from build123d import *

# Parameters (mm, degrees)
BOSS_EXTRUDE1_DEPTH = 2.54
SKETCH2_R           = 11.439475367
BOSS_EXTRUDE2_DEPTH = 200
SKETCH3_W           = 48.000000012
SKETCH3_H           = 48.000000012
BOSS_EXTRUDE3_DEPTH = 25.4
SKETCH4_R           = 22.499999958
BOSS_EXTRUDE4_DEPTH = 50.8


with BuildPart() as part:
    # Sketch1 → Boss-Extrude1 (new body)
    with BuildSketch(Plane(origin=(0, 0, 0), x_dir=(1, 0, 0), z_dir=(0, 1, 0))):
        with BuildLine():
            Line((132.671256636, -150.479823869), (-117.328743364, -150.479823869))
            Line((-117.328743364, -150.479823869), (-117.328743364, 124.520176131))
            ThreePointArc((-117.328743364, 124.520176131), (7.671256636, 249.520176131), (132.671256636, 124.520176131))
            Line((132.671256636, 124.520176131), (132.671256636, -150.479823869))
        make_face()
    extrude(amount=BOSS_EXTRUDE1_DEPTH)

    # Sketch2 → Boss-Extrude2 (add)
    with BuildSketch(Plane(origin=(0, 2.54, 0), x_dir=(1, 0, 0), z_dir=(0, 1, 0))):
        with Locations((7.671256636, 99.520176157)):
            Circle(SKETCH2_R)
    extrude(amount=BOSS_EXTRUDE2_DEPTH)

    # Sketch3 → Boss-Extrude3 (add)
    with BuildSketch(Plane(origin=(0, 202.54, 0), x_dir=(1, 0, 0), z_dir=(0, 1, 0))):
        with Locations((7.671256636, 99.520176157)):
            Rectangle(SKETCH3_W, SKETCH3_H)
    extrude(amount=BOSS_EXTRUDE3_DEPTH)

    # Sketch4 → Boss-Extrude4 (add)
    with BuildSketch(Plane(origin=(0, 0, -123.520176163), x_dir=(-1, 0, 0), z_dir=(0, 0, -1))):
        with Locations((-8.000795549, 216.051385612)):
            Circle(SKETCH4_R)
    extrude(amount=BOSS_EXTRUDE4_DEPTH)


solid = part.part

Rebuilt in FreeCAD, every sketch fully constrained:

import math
import FreeCAD as App
import Part
import Sketcher

V = App.Vector

doc = App.newDocument("Part")
body = doc.addObject("PartDesign::Body", "Body")

sketch1 = body.newObject("Sketcher::SketchObject", "Sketch")
sketch1.AttachmentSupport = (doc.getObject("XZ_Plane"), [""])
sketch1.MapMode = "FlatFace"
sketch1.addGeometry(Part.LineSegment(V(-117, 150, 0), V(133, 150, 0)), False)
sketch1.addGeometry(Part.LineSegment(V(133, 150, 0), V(133, -125, 0)), False)
sketch1.addGeometry(Part.ArcOfCircle(Part.Circle(V(8, -125, 0), V(0, 0, 1), 125), math.radians(180), math.radians(360)), False)
sketch1.addGeometry(Part.LineSegment(V(-117, -125, 0), V(-117, 150, 0)), False)
sketch1.addConstraint(Sketcher.Constraint("Coincident", 0, 2, 1, 1))
sketch1.addConstraint(Sketcher.Constraint("Tangent", 1, 2, 2, 2))
sketch1.addConstraint(Sketcher.Constraint("Tangent", 2, 1, 3, 1))
sketch1.addConstraint(Sketcher.Constraint("Coincident", 3, 2, 0, 1))
sketch1.addConstraint(Sketcher.Constraint("Horizontal", 0))
sketch1.addConstraint(Sketcher.Constraint("Vertical", 1))
sketch1.addConstraint(Sketcher.Constraint("Vertical", 3))
sketch1.addConstraint(Sketcher.Constraint("Radius", 2, 125.0))
sketch1.addConstraint(Sketcher.Constraint("DistanceY", 1, 2, 1, 1, 275.0))
sketch1.addConstraint(Sketcher.Constraint("DistanceX", -1, 1, 2, 3, 7.671257))
sketch1.addConstraint(Sketcher.Constraint("DistanceY", 2, 3, -1, 1, 124.520176))
pad1 = body.newObject("PartDesign::Pad", "Pad")
pad1.Profile = sketch1
pad1.Length = 2.54
pad1.Reversed = True

sketch2 = body.newObject("Sketcher::SketchObject", "Sketch001")
sketch2.AttachmentSupport = (doc.getObject("XZ_Plane"), [""])
sketch2.MapMode = "FlatFace"
sketch2.AttachmentOffset = App.Placement(V(0, 0, -2.54), App.Rotation())
sketch2.addGeometry(Part.Circle(V(8, -100, 0), V(0, 0, 1), 11), False)
sketch2.addConstraint(Sketcher.Constraint("Diameter", 0, 22.878951))
sketch2.addConstraint(Sketcher.Constraint("DistanceX", -1, 1, 0, 3, 7.671257))
sketch2.addConstraint(Sketcher.Constraint("DistanceY", 0, 3, -1, 1, 99.520176))
pad2 = body.newObject("PartDesign::Pad", "Pad001")
pad2.Profile = sketch2
pad2.Length = 200
pad2.Reversed = True

sketch3 = body.newObject("Sketcher::SketchObject", "Sketch002")
sketch3.AttachmentSupport = (doc.getObject("XZ_Plane"), [""])
sketch3.MapMode = "FlatFace"
sketch3.AttachmentOffset = App.Placement(V(0, 0, -202.54), App.Rotation())
sketch3.addGeometry(Part.LineSegment(V(-16, -124, 0), V(-16, -76, 0)), False)
sketch3.addGeometry(Part.LineSegment(V(-16, -76, 0), V(32, -76, 0)), False)
sketch3.addGeometry(Part.LineSegment(V(32, -76, 0), V(32, -124, 0)), False)
sketch3.addGeometry(Part.LineSegment(V(32, -124, 0), V(-16, -124, 0)), False)
sketch3.addConstraint(Sketcher.Constraint("Coincident", 0, 2, 1, 1))
sketch3.addConstraint(Sketcher.Constraint("Coincident", 1, 2, 2, 1))
sketch3.addConstraint(Sketcher.Constraint("Coincident", 2, 2, 3, 1))
sketch3.addConstraint(Sketcher.Constraint("Coincident", 3, 2, 0, 1))
sketch3.addConstraint(Sketcher.Constraint("Vertical", 0))
sketch3.addConstraint(Sketcher.Constraint("Horizontal", 1))
sketch3.addConstraint(Sketcher.Constraint("Vertical", 2))
sketch3.addConstraint(Sketcher.Constraint("Horizontal", 3))
sketch3.addConstraint(Sketcher.Constraint("Equal", 3, 0))
sketch3.addConstraint(Sketcher.Constraint("DistanceX", 1, 1, 1, 2, 48.0))
sketch3.addConstraint(Sketcher.Constraint("DistanceX", 0, 2, -1, 1, 16.328743))
sketch3.addConstraint(Sketcher.Constraint("DistanceY", 0, 2, -1, 1, 75.520176))
pad3 = body.newObject("PartDesign::Pad", "Pad002")
pad3.Profile = sketch3
pad3.Length = 25.4
pad3.Reversed = True

sketch4 = body.newObject("Sketcher::SketchObject", "Sketch003")
sketch4.AttachmentSupport = (doc.getObject("XY_Plane"), [""])
sketch4.MapMode = "FlatFace"
sketch4.AttachmentOffset = App.Placement(V(0, 0, -123.520176), App.Rotation())
sketch4.addGeometry(Part.Circle(V(8, 216, 0), V(0, 0, 1), 22), False)
sketch4.addConstraint(Sketcher.Constraint("Diameter", 0, 45.0))
sketch4.addConstraint(Sketcher.Constraint("DistanceX", -1, 1, 0, 3, 8.000796))
sketch4.addConstraint(Sketcher.Constraint("DistanceY", -1, 1, 0, 3, 216.051386))
pad4 = body.newObject("PartDesign::Pad", "Pad003")
pad4.Profile = sketch4
pad4.Length = 50.8
pad4.Reversed = True

doc.recompute()
